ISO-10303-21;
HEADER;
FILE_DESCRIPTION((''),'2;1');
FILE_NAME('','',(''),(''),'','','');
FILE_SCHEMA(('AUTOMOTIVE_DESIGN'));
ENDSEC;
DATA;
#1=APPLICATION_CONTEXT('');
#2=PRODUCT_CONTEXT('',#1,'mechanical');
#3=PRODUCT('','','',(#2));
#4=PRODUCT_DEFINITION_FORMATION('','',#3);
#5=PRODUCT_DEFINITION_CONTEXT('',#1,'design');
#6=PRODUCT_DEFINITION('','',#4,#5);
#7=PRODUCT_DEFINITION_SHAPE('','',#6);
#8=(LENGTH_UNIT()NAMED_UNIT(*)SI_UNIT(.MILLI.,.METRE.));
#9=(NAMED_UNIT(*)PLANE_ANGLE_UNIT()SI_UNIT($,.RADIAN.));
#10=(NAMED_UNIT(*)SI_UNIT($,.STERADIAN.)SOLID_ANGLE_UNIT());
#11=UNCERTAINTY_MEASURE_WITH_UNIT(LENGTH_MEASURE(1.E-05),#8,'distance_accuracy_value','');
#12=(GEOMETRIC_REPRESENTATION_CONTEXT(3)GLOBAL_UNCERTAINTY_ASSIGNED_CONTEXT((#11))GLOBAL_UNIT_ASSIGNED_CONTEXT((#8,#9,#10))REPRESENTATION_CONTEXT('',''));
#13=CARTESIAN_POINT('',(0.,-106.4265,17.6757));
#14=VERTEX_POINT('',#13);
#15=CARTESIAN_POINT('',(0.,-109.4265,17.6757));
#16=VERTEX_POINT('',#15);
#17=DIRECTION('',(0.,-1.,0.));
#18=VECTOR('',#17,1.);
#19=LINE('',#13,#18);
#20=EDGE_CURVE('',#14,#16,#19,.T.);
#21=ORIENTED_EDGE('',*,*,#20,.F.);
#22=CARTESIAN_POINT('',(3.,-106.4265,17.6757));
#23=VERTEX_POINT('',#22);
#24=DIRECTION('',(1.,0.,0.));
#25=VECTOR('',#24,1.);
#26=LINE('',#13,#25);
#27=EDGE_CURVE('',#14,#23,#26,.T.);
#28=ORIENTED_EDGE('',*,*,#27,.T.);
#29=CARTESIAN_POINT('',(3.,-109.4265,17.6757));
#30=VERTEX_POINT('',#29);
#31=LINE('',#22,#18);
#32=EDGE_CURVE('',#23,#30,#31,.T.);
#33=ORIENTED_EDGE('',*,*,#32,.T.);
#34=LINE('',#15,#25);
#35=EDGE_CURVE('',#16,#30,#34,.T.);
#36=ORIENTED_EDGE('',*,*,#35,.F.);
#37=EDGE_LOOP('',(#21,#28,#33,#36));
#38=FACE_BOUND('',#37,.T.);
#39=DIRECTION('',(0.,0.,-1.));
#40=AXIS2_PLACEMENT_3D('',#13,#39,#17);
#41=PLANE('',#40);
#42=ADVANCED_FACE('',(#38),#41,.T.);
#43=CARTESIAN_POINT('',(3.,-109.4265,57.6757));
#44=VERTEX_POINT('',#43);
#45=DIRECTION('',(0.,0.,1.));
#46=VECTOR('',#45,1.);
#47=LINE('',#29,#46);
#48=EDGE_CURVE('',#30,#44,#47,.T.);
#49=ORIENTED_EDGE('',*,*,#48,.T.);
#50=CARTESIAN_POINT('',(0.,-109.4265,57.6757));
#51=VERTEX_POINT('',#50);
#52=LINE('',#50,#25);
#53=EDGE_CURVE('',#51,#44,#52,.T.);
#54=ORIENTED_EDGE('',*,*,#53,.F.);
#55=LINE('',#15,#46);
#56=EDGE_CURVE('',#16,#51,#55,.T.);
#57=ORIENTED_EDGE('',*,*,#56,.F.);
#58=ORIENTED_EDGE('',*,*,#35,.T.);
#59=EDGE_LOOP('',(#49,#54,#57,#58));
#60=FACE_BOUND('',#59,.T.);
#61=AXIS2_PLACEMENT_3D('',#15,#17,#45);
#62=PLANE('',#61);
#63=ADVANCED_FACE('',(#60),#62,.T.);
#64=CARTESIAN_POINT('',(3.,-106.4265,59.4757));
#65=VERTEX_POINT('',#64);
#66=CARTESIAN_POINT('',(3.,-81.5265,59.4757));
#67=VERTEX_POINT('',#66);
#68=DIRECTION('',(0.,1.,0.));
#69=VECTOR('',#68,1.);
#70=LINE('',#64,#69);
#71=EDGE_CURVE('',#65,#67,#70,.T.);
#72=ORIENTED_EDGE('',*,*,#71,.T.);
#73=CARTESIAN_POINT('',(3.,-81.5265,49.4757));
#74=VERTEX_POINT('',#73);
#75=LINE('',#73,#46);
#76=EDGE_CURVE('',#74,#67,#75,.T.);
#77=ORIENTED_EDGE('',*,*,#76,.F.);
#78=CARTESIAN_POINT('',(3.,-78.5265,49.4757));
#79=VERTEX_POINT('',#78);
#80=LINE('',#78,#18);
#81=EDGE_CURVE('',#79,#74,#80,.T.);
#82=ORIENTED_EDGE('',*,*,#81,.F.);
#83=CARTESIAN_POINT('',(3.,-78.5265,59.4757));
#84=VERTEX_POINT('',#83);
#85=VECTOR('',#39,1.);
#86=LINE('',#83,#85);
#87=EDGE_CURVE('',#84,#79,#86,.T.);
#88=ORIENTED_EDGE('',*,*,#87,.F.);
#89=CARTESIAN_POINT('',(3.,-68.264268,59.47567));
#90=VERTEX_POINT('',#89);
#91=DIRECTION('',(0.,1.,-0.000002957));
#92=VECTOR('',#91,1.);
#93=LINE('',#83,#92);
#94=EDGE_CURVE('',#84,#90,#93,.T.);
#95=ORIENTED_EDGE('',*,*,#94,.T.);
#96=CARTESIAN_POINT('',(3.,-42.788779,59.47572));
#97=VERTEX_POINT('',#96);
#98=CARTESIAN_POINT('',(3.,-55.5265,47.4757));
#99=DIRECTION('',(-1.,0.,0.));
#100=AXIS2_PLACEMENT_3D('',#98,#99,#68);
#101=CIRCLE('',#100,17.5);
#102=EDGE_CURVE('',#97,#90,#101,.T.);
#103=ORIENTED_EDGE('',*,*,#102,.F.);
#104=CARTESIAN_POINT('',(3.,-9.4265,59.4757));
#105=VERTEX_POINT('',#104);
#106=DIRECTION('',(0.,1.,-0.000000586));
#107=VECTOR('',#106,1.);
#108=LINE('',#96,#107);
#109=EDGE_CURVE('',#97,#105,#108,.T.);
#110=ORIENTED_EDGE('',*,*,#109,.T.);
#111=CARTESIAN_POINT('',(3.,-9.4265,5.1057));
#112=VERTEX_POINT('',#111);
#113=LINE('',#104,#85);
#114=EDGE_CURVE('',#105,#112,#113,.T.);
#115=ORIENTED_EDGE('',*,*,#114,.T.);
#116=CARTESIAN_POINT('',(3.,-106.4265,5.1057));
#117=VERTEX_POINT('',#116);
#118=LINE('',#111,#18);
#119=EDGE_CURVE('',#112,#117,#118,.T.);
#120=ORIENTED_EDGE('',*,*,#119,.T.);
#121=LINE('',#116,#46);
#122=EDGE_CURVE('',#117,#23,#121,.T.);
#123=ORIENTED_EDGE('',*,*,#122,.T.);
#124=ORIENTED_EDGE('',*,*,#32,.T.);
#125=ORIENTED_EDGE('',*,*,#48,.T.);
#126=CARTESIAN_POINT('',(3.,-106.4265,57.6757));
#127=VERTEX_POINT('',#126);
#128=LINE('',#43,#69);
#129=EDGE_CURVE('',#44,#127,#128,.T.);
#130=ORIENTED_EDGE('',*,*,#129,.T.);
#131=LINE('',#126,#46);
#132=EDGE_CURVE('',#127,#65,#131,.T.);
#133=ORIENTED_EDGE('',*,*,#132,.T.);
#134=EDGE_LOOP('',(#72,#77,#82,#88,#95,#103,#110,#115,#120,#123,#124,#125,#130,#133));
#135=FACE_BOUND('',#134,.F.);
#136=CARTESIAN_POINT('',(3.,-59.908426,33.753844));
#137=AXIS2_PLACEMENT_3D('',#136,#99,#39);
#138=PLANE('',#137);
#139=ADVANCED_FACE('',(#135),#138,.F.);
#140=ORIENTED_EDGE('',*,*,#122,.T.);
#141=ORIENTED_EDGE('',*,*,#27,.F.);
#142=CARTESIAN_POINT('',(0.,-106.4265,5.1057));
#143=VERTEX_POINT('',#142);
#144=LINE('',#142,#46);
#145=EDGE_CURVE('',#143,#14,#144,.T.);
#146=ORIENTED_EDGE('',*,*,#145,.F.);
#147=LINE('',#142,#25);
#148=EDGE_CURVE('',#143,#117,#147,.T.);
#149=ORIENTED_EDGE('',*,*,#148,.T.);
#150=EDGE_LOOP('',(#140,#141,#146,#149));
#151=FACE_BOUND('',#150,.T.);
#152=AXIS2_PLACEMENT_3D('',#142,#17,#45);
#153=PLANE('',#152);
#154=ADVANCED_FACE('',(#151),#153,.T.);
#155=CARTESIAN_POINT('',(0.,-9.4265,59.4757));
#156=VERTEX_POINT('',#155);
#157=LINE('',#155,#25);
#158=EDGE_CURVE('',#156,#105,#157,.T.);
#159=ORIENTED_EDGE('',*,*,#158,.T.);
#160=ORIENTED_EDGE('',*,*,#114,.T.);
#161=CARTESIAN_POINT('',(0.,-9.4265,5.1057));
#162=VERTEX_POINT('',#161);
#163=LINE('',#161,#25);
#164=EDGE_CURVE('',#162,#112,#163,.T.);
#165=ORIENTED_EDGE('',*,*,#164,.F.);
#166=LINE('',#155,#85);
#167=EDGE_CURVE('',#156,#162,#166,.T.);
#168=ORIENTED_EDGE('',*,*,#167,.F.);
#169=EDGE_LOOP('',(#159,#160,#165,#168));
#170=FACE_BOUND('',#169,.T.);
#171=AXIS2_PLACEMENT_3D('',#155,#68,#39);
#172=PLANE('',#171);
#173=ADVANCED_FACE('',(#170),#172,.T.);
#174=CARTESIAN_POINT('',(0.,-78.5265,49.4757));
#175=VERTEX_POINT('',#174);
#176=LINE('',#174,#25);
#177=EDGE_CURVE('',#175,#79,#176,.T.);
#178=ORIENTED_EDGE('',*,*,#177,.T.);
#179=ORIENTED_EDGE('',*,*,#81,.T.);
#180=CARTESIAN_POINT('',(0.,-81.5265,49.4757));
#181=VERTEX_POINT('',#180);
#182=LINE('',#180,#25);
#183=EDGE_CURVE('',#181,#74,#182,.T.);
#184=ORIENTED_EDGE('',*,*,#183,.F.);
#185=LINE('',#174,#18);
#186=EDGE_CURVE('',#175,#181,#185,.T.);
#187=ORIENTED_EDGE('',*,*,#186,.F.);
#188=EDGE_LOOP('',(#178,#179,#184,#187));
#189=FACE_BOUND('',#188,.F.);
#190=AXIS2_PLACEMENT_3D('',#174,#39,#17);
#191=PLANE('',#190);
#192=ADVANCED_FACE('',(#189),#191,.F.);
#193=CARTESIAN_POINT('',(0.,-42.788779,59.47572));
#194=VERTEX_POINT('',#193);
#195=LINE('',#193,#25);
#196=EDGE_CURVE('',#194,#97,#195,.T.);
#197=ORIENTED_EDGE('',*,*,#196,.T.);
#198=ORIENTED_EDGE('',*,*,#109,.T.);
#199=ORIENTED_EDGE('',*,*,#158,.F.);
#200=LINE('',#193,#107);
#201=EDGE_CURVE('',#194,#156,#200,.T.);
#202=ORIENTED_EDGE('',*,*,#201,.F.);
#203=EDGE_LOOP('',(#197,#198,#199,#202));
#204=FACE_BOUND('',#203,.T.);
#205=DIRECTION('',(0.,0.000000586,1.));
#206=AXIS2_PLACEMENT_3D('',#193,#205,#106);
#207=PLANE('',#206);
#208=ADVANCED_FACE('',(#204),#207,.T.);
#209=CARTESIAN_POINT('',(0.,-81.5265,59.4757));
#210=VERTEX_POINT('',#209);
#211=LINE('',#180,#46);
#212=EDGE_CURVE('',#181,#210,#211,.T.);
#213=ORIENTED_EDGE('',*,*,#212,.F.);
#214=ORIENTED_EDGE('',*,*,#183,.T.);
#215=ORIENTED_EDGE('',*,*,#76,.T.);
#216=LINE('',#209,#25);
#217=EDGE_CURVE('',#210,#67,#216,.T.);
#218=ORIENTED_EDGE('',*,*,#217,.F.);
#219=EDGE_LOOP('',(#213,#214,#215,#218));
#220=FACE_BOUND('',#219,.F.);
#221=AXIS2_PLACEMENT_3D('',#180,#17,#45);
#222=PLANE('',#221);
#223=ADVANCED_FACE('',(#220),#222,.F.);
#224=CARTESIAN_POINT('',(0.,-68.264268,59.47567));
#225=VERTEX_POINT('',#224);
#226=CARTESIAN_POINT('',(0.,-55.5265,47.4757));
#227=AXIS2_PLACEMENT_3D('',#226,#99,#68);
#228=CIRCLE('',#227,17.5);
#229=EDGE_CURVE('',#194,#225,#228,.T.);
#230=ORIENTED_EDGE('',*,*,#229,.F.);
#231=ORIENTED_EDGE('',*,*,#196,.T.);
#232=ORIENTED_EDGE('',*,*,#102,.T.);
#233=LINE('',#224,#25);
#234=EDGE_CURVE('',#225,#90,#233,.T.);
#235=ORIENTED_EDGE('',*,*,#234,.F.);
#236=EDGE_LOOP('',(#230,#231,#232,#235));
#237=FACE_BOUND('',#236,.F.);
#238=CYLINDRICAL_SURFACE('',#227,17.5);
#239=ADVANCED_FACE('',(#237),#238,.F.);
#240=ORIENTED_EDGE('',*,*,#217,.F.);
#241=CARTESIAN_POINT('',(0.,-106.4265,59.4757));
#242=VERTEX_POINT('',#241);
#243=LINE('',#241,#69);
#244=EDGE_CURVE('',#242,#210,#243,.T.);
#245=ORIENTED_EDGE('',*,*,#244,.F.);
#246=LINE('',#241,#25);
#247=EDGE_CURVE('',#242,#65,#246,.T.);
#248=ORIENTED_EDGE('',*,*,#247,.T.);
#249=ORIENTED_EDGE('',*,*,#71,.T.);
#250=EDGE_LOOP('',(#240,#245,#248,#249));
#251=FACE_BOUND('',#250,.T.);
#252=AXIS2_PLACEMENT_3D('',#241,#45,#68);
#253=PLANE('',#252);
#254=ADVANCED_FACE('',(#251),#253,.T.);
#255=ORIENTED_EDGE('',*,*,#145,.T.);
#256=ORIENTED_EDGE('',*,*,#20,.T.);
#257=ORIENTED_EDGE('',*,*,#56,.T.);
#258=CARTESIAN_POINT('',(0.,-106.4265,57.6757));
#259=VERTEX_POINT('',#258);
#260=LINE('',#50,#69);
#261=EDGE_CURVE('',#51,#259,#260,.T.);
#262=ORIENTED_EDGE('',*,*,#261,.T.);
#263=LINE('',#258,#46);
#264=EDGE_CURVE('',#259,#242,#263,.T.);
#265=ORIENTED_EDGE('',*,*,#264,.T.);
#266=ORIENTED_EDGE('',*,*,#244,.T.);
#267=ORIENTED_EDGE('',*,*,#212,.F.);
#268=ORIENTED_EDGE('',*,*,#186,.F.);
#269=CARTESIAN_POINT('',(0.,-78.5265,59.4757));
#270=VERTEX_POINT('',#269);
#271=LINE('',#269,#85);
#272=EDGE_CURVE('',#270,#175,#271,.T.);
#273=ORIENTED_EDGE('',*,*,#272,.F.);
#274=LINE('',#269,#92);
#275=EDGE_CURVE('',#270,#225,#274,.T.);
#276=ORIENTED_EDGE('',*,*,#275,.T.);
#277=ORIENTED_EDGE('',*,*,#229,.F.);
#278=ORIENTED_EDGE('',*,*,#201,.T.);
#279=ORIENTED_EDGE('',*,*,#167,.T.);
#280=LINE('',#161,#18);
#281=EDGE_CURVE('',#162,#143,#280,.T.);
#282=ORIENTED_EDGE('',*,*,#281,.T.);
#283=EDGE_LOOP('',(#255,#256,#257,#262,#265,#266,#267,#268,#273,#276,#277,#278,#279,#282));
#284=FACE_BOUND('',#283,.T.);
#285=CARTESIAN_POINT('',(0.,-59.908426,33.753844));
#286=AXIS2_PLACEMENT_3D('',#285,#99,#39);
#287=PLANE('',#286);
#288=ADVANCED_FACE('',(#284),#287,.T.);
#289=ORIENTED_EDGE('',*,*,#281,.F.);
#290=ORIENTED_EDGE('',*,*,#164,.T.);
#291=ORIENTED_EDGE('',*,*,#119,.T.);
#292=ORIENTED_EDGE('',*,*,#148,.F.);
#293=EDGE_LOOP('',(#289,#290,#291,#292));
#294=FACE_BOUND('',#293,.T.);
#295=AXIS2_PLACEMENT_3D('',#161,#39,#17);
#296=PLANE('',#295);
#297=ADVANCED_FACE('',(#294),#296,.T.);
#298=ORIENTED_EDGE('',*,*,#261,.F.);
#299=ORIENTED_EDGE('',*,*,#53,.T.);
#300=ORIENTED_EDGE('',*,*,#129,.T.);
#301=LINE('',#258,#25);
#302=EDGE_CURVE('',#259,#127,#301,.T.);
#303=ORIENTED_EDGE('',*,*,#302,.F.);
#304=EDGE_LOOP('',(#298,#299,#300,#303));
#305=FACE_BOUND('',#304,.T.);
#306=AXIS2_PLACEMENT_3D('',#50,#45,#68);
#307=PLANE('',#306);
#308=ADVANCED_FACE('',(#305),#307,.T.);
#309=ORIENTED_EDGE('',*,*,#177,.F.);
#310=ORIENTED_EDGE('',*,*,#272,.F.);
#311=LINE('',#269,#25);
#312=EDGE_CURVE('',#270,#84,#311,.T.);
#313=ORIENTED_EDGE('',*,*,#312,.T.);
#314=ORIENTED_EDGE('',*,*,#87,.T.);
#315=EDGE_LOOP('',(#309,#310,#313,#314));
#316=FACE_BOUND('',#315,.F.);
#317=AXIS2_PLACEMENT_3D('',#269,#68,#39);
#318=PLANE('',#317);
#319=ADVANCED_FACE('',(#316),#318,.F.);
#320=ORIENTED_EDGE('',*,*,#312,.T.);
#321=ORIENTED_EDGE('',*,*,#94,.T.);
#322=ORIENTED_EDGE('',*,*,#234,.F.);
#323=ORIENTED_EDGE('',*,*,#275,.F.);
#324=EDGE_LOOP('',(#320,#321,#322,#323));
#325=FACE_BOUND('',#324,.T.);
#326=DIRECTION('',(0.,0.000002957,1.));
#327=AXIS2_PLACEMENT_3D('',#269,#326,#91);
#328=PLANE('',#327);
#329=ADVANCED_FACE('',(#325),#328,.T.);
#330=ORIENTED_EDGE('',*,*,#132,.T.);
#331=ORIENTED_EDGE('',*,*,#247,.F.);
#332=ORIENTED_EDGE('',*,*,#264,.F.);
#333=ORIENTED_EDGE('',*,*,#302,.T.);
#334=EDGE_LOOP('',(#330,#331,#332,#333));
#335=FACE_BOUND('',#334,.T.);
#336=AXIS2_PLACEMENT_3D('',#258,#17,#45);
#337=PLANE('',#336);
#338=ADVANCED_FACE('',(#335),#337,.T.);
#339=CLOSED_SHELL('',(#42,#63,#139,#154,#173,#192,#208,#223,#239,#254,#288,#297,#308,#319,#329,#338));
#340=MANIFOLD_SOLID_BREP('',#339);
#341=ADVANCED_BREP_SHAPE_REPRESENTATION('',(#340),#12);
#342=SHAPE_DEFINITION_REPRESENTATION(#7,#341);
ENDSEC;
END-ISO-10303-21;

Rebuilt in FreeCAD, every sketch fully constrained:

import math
import FreeCAD as App
import Part
import Sketcher

V = App.Vector

doc = App.newDocument("Part")
body = doc.addObject("PartDesign::Body", "Body")

# Sketch on YZ plane
sketch1 = body.newObject("Sketcher::SketchObject", "Sketch")
sketch1.AttachmentSupport = (doc.getObject("YZ_Plane"), [""])
sketch1.MapMode = "FlatFace"
sketch1.addGeometry([
    Part.LineSegment(V(-9.4265, 5.1057, 0), V(-9.4265, 59.4757, 0)),  # 0
    Part.LineSegment(V(-9.4265, 59.4757, 0), V(-42.7888, 59.4757, 0)),  # 1
    Part.ArcOfCircle(Part.Circle(V(-55.5265, 47.4757, 0), V(0, 0, 1), 17.499971), math.radians(136.708329), math.radians(403.291896)),  # 2
    Part.LineSegment(V(-68.2643, 59.4757, 0), V(-78.5265, 59.4757, 0)),  # 3
    Part.LineSegment(V(-78.5265, 59.4757, 0), V(-78.5265, 49.4757, 0)),  # 4
    Part.LineSegment(V(-78.5265, 49.4757, 0), V(-81.5265, 49.4757, 0)),  # 5
    Part.LineSegment(V(-81.5265, 49.4757, 0), V(-81.5265, 59.4757, 0)),  # 6
    Part.LineSegment(V(-81.5265, 59.4757, 0), V(-106.4265, 59.4757, 0)),  # 7
    Part.LineSegment(V(-106.4265, 59.4757, 0), V(-106.4265, 57.6757, 0)),  # 8
    Part.LineSegment(V(-106.4265, 57.6757, 0), V(-109.4265, 57.6757, 0)),  # 9
    Part.LineSegment(V(-109.4265, 57.6757, 0), V(-109.4265, 17.6757, 0)),  # 10
    Part.LineSegment(V(-109.4265, 17.6757, 0), V(-106.4265, 17.6757, 0)),  # 11
    Part.LineSegment(V(-106.4265, 17.6757, 0), V(-106.4265, 5.1057, 0)),  # 12
    Part.LineSegment(V(-106.4265, 5.1057, 0), V(-9.4265, 5.1057, 0)),  # 13
], False)
sketch1.addConstraint([
    Sketcher.Constraint("Coincident", 0, 2, 1, 1),
    Sketcher.Constraint("Coincident", 1, 2, 2, 2),
    Sketcher.Constraint("Coincident", 2, 1, 3, 1),
    Sketcher.Constraint("Coincident", 3, 2, 4, 1),
    Sketcher.Constraint("Coincident", 4, 2, 5, 1),
    Sketcher.Constraint("Coincident", 5, 2, 6, 1),
    Sketcher.Constraint("Coincident", 6, 2, 7, 1),
    Sketcher.Constraint("Coincident", 7, 2, 8, 1),
    Sketcher.Constraint("Coincident", 8, 2, 9, 1),
    Sketcher.Constraint("Coincident", 9, 2, 10, 1),
    Sketcher.Constraint("Coincident", 10, 2, 11, 1),
    Sketcher.Constraint("Coincident", 11, 2, 12, 1),
    Sketcher.Constraint("Coincident", 12, 2, 13, 1),
    Sketcher.Constraint("Coincident", 13, 2, 0, 1),
    Sketcher.Constraint("Vertical", 0),
    Sketcher.Constraint("Horizontal", 1),
    Sketcher.Constraint("Horizontal", 3),
    Sketcher.Constraint("Vertical", 4),
    Sketcher.Constraint("Horizontal", 5),
    Sketcher.Constraint("Vertical", 6),
    Sketcher.Constraint("Horizontal", 7),
    Sketcher.Constraint("Vertical", 8),
    Sketcher.Constraint("Horizontal", 9),
    Sketcher.Constraint("Vertical", 10),
    Sketcher.Constraint("Horizontal", 11),
    Sketcher.Constraint("Vertical", 12),
    Sketcher.Constraint("Horizontal", 13),
    Sketcher.Constraint("Horizontal", 1, 2, 2, 1),
    Sketcher.Constraint("Horizontal", 3, 2, 6, 2),
    Sketcher.Constraint("Vertical", 8, 2, 11, 2),
    Sketcher.Constraint("Equal", 5, 9),
    Sketcher.Constraint("Radius", 2, 17.5),
    Sketcher.Constraint("DistanceX", 5, 2, 5, 1, 3.0),
    Sketcher.Constraint("DistanceX", 13, 1, 13, 2, 97.0),
    Sketcher.Constraint("DistanceY", 4, 2, 4, 1, 10.0),
    Sketcher.Constraint("DistanceY", 10, 2, 10, 1, 40.0),
    Sketcher.Constraint("DistanceX", 7, 2, 7, 1, 24.9),
    Sketcher.Constraint("DistanceY", 8, 2, 8, 1, 1.8),
    Sketcher.Constraint("DistanceY", 2, 3, 0, 2, 12.0),
    Sketcher.Constraint("DistanceX", 3, 2, 2, 3, 23.0),
    Sketcher.Constraint("DistanceY", 0, 1, 0, 2, 54.37),
    Sketcher.Constraint("DistanceX", 0, 2, -1, 1, 9.4265),
    Sketcher.Constraint("DistanceY", -1, 1, 2, 3, 47.4757),
])
pad1 = body.newObject("PartDesign::Pad", "Pad")
pad1.Profile = sketch1
pad1.Length = 3

doc.recompute()
